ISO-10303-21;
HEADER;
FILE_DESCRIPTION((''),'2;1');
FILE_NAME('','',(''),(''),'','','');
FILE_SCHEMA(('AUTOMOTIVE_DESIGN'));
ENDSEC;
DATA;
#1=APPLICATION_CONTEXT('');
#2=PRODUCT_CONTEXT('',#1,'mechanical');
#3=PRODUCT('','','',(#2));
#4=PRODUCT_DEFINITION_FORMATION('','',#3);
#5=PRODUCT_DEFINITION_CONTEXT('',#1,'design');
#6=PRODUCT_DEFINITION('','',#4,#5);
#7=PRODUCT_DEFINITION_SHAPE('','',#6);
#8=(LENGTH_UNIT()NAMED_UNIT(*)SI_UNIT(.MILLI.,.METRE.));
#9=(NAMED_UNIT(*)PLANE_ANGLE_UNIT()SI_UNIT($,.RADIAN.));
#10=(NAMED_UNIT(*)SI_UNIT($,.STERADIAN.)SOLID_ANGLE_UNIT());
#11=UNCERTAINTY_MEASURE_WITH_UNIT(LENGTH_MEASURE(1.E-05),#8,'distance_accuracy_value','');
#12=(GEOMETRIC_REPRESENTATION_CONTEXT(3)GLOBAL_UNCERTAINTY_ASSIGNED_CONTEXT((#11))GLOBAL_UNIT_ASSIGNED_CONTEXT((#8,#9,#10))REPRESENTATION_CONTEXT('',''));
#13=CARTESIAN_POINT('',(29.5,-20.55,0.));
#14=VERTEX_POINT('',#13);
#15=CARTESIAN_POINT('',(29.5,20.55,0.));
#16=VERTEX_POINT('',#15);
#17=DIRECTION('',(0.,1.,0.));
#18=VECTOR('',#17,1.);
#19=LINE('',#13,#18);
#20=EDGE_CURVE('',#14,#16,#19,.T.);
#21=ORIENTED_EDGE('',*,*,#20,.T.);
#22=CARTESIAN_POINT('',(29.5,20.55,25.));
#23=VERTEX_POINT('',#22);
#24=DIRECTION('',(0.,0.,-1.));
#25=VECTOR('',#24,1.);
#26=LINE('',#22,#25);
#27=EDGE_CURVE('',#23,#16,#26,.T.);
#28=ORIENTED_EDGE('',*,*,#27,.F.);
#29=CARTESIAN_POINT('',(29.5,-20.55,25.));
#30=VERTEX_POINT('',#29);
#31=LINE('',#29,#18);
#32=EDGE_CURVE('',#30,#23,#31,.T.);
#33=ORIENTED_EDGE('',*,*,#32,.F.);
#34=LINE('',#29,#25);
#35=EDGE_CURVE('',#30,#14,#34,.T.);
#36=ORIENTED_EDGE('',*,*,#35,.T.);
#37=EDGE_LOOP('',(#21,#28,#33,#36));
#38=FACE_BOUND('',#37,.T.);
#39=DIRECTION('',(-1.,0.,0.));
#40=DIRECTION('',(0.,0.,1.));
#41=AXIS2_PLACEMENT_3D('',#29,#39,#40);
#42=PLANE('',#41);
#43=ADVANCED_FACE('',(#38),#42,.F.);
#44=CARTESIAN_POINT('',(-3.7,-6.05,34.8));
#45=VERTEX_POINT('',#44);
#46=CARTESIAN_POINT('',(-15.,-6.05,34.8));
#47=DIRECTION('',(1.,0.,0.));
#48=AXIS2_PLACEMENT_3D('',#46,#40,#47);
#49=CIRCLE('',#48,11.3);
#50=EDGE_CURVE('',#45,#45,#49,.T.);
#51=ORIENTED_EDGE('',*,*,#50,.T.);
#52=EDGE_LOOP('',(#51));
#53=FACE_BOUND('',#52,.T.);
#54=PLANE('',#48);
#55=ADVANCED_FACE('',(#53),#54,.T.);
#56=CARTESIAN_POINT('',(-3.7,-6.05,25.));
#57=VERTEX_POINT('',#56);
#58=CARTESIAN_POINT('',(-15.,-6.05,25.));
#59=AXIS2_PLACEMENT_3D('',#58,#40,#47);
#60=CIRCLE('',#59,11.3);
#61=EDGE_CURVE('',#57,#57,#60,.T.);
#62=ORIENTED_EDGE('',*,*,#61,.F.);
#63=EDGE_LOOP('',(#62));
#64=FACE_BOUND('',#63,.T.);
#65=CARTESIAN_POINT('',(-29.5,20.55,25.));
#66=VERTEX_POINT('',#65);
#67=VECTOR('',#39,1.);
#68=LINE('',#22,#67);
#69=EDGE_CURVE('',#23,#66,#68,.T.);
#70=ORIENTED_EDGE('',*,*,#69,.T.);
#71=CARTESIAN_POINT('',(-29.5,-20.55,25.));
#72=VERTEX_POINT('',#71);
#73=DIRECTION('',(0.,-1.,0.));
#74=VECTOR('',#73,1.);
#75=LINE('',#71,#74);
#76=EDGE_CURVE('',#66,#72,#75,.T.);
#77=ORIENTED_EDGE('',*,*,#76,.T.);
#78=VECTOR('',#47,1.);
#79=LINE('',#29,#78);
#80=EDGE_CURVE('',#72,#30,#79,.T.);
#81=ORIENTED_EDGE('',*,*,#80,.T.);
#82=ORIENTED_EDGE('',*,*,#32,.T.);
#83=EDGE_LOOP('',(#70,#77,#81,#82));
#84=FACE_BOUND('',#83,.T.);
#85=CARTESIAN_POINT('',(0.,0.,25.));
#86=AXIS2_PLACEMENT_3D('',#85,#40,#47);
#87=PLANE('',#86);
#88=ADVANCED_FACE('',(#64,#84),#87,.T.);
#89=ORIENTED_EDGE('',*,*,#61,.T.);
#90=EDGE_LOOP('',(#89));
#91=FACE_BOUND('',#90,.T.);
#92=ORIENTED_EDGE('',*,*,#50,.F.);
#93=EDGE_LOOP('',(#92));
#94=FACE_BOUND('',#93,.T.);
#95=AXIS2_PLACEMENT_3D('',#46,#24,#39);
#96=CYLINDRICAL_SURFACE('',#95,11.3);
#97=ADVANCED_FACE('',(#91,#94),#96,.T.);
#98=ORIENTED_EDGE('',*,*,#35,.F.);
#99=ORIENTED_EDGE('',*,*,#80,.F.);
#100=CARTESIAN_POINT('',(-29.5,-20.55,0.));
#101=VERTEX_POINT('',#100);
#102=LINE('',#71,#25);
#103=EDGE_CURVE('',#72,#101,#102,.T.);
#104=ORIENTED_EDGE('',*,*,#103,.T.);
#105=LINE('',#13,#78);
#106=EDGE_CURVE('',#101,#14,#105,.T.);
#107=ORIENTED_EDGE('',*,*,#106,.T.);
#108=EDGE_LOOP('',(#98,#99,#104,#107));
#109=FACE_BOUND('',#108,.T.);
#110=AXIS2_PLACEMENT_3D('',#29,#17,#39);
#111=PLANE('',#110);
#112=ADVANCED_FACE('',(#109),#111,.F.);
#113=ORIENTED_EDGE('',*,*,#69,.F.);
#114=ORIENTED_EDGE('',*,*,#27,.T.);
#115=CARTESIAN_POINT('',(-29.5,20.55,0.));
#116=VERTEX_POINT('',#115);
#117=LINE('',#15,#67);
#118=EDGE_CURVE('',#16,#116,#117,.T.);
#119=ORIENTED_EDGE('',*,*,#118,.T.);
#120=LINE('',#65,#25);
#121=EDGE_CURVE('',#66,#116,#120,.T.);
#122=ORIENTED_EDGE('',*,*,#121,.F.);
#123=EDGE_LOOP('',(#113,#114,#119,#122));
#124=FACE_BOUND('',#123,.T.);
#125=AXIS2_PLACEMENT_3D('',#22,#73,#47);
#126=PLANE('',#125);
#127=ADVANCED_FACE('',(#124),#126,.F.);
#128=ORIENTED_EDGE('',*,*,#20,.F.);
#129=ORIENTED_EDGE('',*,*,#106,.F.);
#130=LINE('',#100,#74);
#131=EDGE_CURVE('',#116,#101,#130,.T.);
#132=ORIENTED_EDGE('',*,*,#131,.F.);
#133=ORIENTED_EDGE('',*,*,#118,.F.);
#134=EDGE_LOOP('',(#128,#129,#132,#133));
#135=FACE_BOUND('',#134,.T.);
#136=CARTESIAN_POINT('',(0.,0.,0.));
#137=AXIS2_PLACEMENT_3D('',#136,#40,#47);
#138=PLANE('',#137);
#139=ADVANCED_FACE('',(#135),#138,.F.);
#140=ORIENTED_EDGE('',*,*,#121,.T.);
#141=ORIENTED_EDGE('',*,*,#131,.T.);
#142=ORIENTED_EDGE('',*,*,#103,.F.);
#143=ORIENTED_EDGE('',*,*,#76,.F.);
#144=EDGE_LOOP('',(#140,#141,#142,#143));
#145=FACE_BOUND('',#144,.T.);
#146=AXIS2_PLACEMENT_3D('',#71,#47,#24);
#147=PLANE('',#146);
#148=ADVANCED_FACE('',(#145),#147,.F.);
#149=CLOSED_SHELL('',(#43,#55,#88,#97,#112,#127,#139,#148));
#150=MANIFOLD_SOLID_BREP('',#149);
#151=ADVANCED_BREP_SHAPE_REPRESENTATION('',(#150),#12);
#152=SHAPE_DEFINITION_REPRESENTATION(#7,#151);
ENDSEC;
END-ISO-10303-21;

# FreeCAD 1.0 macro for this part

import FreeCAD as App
import Part
import Sketcher
from FreeCAD import Vector


def add_polygon(sketch, points):
    """Adds a closed chain of lines whose ends are joined by coincident constraints."""
    first, n = sketch.GeometryCount, len(points)
    for a, b in zip(points, points[1:] + points[:1]):
        sketch.addGeometry(Part.LineSegment(App.Vector(*a, 0), App.Vector(*b, 0)), False)
    for i in range(n):
        sketch.addConstraint(Sketcher.Constraint("Coincident", first + i, 2, first + (i + 1) % n, 1))

doc = App.newDocument("Part")
body = doc.addObject("PartDesign::Body", "Body")

# Sketch on XY plane
sketch1 = body.newObject("Sketcher::SketchObject", "Sketch")
sketch1.AttachmentSupport = (doc.getObject("XY_Plane"), [""])
sketch1.MapMode = "FlatFace"
add_polygon(sketch1, [(-30, 21), (-30, -21), (30, -21), (30, 21)])  # lines 0-3
sketch1.addConstraint(Sketcher.Constraint("Vertical", 0))
sketch1.addConstraint(Sketcher.Constraint("Horizontal", 1))
sketch1.addConstraint(Sketcher.Constraint("Vertical", 2))
sketch1.addConstraint(Sketcher.Constraint("Horizontal", 3))
sketch1.addConstraint(Sketcher.Constraint("Symmetric", 0, 2, 2, 2, -1, 1))
sketch1.addConstraint(Sketcher.Constraint("DistanceX", 1, 1, 1, 2, 59.0))
sketch1.addConstraint(Sketcher.Constraint("DistanceY", 0, 2, 0, 1, 41.1))
pad1 = body.newObject("PartDesign::Pad", "Pad")
pad1.Profile = sketch1
pad1.Length = 25

# Sketch on XY plane
sketch2 = body.newObject("Sketcher::SketchObject", "Sketch001")
sketch2.AttachmentSupport = (doc.getObject("XY_Plane"), [""])
sketch2.MapMode = "FlatFace"
sketch2.AttachmentOffset = App.Placement(Vector(0, 0, 25), App.Rotation())
sketch2.addGeometry(Part.Circle(Vector(-15, -6, 0), Vector(0, 0, 1), 11), False)
sketch2.addConstraint(Sketcher.Constraint("Diameter", 0, 22.6))
sketch2.addConstraint(Sketcher.Constraint("DistanceX", 0, 3, -1, 1, 15.0))
sketch2.addConstraint(Sketcher.Constraint("DistanceY", 0, 3, -1, 1, 6.05))
pad2 = body.newObject("PartDesign::Pad", "Pad001")
pad2.Profile = sketch2
pad2.Length = 9.8

doc.recompute()
